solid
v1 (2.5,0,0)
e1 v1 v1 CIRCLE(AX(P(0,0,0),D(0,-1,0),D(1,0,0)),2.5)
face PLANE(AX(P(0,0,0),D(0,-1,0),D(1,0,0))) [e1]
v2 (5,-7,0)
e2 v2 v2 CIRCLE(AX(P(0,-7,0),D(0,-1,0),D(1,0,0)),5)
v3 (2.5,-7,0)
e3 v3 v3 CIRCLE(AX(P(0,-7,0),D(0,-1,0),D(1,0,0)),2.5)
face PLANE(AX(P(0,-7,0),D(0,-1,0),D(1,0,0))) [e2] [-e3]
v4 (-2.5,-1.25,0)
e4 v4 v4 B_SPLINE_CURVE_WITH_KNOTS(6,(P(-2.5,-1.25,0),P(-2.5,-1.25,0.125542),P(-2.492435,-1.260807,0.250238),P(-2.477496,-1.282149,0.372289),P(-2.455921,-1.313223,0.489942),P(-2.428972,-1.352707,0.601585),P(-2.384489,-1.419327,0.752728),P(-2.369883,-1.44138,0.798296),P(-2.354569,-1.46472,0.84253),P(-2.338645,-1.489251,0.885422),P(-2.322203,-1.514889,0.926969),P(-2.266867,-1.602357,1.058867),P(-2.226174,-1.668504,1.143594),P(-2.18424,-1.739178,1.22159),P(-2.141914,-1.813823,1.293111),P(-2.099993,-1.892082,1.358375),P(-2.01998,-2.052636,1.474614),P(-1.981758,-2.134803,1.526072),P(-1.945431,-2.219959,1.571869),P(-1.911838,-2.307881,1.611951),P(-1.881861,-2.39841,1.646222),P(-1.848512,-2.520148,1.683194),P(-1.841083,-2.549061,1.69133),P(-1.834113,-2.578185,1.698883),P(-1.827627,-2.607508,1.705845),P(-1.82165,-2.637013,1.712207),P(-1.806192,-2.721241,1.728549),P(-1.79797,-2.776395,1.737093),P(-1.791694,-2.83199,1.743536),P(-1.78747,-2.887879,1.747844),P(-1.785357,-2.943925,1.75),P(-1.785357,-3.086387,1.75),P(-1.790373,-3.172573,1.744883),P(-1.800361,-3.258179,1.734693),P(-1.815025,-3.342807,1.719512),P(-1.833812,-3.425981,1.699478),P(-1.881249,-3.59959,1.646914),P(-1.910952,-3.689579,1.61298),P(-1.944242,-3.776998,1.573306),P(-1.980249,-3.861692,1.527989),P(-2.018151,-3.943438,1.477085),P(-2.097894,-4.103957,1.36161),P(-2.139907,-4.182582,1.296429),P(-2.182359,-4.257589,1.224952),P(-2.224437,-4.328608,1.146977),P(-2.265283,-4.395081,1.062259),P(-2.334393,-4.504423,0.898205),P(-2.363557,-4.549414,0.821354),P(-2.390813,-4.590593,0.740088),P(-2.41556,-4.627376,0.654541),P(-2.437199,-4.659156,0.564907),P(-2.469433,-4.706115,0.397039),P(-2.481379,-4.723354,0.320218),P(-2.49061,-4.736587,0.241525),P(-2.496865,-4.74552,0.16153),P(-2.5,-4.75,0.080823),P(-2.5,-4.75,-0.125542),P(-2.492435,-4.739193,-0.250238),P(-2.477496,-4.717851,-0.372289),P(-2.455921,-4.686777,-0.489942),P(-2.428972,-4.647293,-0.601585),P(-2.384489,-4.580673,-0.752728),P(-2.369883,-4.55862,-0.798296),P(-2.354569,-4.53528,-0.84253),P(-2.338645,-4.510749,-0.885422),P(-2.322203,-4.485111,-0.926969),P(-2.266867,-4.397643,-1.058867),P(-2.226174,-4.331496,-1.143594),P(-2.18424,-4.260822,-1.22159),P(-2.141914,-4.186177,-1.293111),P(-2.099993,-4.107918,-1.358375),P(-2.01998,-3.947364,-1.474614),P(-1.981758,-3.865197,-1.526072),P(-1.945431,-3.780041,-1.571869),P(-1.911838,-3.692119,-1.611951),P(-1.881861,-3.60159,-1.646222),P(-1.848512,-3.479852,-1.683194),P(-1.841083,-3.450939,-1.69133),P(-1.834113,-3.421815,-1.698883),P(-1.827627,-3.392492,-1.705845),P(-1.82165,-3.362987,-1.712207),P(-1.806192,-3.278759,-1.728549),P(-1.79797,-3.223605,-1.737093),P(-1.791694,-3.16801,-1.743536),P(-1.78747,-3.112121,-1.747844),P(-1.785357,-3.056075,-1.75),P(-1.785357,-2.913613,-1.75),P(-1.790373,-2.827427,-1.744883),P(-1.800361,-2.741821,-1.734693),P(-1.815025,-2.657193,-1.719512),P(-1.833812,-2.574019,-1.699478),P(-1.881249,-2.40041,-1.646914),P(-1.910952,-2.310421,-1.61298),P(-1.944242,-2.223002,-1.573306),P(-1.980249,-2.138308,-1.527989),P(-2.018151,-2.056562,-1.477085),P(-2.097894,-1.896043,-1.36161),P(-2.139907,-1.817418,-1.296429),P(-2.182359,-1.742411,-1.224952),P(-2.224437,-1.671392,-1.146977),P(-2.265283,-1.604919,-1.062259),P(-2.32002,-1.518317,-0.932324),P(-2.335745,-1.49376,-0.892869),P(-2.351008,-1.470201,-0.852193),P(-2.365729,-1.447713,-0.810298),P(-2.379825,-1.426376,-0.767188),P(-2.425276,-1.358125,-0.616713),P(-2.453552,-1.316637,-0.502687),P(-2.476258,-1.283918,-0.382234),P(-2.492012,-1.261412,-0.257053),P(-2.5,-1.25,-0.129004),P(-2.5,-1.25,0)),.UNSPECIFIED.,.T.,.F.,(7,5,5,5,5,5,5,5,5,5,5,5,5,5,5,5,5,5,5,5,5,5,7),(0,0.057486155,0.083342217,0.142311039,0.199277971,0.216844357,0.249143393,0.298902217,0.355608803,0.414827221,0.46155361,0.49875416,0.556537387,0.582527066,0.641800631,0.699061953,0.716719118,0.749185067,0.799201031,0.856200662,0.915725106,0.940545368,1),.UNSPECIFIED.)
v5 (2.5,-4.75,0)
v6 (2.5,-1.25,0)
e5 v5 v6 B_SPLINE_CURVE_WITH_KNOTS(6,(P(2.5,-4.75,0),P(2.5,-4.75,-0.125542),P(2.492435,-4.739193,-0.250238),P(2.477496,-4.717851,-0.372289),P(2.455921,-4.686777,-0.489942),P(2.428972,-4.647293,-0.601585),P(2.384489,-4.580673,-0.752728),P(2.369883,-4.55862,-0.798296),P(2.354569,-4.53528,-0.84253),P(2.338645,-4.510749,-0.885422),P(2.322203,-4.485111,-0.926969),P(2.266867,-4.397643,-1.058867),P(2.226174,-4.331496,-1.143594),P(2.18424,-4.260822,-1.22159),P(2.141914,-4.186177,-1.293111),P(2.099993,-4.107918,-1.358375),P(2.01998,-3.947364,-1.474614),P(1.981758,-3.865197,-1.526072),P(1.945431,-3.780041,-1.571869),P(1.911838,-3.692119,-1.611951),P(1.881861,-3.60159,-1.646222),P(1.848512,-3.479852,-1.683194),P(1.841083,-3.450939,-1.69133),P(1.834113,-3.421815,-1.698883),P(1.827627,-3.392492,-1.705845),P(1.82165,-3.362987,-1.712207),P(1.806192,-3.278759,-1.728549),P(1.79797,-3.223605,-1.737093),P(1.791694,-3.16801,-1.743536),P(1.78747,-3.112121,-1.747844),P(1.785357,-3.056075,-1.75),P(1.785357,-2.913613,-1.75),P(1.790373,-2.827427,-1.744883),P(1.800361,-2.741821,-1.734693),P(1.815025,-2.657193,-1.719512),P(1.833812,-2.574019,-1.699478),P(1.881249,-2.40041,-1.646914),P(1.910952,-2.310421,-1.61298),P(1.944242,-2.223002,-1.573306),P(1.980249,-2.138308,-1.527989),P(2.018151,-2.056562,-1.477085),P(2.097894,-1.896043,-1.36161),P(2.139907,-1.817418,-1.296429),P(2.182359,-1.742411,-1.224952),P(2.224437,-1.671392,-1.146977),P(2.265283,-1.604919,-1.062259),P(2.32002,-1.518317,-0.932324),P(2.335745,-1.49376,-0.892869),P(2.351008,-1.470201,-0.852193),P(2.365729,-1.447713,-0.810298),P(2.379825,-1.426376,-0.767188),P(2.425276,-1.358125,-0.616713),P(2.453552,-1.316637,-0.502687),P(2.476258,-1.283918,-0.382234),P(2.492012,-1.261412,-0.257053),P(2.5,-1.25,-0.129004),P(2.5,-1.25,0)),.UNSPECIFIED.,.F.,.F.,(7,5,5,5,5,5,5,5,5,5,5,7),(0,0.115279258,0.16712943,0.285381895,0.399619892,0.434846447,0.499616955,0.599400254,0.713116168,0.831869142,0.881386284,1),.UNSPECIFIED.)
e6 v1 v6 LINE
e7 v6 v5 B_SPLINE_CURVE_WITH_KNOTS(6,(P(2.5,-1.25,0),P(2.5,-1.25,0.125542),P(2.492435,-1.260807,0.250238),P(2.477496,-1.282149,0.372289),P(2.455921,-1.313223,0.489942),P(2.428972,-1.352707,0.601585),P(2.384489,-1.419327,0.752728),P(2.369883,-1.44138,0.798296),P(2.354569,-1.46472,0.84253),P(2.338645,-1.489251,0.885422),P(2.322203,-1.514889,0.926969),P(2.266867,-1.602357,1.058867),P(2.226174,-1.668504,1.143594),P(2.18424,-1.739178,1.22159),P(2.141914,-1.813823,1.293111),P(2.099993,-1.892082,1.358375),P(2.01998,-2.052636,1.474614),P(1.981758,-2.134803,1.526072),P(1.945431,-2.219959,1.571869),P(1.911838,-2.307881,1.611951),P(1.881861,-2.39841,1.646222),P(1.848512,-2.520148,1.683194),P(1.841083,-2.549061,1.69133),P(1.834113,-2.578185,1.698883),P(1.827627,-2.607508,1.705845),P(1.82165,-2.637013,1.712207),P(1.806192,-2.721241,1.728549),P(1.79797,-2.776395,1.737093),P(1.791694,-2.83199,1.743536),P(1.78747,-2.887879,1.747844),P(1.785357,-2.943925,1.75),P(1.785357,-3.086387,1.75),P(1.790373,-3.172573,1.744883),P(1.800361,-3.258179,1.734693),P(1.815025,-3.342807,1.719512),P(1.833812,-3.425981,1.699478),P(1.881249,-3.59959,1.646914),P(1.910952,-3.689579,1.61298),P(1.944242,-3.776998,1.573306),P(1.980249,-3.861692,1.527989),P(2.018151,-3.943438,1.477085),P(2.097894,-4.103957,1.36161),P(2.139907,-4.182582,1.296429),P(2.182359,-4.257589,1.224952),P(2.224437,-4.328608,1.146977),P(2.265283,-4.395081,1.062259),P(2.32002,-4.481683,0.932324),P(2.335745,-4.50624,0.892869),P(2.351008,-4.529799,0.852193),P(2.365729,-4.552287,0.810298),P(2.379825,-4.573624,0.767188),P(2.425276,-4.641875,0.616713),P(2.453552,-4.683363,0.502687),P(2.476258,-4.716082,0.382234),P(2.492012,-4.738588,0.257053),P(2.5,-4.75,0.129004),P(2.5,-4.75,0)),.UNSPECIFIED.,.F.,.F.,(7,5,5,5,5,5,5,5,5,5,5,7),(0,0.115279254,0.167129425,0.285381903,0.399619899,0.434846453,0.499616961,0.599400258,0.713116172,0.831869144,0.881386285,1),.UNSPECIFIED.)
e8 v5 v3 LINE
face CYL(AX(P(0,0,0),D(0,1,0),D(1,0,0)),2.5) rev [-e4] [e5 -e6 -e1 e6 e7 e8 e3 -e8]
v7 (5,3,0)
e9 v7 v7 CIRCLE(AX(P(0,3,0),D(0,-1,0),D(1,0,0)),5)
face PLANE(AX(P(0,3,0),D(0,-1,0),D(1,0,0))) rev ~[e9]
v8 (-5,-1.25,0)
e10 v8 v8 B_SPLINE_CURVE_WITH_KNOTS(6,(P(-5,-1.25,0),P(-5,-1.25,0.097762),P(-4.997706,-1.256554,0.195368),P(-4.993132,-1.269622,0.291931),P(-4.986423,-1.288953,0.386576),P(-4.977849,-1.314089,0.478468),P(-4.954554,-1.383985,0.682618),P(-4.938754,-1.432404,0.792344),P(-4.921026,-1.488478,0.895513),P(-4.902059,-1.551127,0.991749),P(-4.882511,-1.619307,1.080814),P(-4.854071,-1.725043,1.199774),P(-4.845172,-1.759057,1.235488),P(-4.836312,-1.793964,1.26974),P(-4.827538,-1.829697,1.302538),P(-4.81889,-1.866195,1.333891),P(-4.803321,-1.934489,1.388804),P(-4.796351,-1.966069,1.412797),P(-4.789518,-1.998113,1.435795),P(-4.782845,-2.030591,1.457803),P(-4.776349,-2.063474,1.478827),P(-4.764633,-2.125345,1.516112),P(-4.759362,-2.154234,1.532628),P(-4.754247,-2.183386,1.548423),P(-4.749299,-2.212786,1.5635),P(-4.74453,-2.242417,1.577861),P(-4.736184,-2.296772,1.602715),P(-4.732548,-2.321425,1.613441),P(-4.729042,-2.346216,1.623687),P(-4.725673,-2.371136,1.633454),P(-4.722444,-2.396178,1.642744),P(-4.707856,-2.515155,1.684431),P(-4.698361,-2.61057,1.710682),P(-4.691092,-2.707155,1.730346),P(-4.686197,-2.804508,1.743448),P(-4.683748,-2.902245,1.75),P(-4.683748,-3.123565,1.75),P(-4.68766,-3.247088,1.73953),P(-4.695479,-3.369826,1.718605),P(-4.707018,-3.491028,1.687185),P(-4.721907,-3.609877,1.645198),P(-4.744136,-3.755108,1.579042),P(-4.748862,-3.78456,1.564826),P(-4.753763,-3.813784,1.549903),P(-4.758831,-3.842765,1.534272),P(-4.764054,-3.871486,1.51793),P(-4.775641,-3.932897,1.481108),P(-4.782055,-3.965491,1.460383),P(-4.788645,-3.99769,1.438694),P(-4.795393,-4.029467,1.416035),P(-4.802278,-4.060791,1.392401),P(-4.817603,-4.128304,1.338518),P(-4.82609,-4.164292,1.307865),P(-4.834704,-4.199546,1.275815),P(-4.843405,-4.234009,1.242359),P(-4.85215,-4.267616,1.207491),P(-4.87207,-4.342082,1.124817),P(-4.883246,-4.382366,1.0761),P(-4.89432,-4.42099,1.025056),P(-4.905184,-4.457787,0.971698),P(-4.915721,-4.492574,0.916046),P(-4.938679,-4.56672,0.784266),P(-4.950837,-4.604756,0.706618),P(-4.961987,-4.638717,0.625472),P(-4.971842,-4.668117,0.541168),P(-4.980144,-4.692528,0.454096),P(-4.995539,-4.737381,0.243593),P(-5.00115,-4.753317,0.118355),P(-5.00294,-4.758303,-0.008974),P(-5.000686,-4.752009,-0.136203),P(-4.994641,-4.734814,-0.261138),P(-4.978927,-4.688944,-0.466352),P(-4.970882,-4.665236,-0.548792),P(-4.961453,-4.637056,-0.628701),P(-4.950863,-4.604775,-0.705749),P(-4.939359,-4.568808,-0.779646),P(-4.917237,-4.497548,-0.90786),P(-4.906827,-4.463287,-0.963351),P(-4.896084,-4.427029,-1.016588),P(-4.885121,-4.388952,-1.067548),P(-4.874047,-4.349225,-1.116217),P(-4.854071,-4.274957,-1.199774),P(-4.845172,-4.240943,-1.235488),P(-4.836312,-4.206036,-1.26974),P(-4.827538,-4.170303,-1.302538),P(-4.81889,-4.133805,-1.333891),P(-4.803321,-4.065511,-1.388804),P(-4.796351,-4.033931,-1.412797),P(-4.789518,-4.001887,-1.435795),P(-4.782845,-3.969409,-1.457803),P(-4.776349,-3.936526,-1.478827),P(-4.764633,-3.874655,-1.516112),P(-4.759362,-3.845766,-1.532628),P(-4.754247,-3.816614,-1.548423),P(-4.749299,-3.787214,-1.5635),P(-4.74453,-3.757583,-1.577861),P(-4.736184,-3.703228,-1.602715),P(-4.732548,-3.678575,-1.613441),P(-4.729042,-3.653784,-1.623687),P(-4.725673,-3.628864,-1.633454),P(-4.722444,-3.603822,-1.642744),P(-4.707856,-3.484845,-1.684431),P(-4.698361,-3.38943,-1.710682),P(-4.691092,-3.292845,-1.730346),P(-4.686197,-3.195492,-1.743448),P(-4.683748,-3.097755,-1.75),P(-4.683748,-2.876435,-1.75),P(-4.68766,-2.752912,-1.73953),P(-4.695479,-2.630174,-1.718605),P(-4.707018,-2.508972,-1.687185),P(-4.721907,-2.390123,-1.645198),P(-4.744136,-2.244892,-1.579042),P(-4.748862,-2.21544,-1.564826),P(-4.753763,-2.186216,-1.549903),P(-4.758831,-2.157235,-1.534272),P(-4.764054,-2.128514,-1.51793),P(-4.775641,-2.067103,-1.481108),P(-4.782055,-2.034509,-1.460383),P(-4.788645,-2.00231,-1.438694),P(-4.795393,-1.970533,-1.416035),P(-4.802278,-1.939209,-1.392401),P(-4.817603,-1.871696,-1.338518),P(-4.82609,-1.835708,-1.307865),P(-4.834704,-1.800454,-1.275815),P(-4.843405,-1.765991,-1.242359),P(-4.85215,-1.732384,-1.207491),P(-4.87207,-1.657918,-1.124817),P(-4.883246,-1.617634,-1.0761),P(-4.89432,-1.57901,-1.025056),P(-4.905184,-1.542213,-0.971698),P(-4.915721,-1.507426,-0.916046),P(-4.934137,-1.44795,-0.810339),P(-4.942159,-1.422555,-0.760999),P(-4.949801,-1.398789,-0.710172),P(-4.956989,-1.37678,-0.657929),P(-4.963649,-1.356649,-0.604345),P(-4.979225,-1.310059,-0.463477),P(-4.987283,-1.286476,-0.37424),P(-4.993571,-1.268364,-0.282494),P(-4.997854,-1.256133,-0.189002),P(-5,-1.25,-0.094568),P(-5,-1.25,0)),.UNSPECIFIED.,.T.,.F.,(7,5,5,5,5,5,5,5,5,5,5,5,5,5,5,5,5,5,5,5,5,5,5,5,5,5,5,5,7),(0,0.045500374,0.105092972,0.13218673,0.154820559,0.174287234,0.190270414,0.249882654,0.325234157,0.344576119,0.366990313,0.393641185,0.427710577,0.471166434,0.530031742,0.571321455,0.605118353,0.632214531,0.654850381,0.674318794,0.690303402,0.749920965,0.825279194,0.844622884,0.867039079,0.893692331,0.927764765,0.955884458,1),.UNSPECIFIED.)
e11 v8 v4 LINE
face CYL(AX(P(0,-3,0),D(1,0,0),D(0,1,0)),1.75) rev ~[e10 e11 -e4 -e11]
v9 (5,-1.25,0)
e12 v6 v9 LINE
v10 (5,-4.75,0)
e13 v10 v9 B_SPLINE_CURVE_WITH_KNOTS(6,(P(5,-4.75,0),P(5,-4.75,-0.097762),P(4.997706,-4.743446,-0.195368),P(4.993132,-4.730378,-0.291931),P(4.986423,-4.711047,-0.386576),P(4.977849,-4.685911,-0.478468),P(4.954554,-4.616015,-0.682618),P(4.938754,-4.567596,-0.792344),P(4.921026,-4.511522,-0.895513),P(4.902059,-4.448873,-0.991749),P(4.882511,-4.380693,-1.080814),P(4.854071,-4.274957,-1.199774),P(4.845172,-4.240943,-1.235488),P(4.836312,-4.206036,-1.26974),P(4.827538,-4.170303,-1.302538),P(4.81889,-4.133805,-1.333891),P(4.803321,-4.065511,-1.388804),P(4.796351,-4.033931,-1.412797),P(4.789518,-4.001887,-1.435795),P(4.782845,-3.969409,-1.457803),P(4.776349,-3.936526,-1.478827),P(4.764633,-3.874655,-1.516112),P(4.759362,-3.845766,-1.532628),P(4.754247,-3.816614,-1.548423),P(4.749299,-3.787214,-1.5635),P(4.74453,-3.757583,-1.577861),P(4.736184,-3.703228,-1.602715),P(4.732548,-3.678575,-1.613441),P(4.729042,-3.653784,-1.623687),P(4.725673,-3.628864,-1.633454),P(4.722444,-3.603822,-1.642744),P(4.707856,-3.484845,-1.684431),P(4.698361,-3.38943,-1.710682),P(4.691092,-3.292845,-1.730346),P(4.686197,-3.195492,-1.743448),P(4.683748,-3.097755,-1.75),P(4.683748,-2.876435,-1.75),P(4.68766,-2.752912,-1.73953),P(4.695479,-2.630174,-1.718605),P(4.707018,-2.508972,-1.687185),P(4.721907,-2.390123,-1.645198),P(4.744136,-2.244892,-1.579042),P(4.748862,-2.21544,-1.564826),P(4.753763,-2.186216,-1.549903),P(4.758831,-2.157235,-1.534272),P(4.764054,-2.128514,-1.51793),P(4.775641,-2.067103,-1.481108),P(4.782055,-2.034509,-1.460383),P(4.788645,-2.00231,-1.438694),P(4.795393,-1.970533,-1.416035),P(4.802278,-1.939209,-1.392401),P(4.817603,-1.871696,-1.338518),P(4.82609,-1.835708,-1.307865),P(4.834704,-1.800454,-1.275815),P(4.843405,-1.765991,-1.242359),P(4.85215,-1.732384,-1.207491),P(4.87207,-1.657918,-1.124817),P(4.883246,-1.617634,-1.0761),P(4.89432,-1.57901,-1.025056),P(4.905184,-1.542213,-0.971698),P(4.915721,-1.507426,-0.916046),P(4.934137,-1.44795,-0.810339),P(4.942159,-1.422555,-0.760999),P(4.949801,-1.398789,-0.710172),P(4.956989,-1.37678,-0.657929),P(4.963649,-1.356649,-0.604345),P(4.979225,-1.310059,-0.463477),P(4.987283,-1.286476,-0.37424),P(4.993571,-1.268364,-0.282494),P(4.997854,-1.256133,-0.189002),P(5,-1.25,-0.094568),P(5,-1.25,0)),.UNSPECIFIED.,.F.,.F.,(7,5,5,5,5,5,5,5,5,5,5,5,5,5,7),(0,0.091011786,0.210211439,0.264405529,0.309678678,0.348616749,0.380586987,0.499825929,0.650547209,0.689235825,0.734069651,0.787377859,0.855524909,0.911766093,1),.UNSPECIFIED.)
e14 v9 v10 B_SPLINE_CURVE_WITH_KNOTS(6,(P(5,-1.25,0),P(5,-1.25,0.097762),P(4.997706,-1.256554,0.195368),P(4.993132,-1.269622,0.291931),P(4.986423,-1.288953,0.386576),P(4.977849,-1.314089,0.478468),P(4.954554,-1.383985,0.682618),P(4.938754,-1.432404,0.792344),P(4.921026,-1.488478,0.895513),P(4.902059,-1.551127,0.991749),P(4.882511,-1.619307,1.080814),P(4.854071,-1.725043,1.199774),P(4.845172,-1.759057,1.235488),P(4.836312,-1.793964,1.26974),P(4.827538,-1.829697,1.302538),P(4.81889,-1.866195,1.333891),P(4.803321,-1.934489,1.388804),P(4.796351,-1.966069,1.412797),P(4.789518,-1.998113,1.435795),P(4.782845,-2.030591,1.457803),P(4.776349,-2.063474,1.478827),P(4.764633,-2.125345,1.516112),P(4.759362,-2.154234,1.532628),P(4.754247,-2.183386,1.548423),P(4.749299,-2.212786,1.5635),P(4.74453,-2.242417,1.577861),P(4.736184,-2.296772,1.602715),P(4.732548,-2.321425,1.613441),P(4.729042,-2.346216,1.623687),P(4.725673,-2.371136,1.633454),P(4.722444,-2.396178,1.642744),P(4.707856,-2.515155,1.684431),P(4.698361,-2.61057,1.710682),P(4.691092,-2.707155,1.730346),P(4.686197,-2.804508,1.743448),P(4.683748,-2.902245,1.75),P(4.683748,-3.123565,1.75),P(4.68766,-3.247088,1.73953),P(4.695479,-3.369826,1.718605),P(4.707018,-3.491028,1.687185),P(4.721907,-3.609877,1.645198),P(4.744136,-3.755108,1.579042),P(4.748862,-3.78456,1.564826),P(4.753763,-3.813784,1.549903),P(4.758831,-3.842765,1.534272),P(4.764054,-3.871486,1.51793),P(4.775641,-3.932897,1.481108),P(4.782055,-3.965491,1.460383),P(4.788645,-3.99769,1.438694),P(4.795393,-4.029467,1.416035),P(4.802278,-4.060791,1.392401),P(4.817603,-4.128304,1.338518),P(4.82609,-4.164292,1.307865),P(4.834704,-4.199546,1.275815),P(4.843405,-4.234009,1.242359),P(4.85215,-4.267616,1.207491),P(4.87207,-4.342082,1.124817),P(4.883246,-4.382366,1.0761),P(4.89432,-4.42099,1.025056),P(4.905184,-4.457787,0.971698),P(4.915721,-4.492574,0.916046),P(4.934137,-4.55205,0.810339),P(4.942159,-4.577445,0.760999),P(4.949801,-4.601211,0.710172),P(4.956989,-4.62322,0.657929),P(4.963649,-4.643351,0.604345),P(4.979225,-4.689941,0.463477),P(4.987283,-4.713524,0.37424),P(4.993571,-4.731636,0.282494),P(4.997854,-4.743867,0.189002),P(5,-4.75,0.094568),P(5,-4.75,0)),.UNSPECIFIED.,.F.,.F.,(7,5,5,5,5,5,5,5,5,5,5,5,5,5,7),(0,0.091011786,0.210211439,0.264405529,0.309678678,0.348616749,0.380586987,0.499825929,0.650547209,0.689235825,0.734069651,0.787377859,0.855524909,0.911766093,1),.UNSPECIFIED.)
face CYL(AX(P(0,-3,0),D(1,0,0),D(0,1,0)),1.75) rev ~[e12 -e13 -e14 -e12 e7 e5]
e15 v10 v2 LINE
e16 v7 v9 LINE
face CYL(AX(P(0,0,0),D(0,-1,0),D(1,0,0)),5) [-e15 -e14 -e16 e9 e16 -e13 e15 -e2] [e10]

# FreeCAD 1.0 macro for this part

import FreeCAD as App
import Part
import Sketcher

doc = App.newDocument("Part")
body = doc.addObject("PartDesign::Body", "Body")

sketch1 = body.newObject("Sketcher::SketchObject", "Sketch")
sketch1.AttachmentSupport = (doc.getObject("XZ_Plane"), [""])
sketch1.MapMode = "FlatFace"
sketch1.addGeometry(Part.Circle(App.Vector(0, 0, 0), App.Vector(0, 0, 1), 5), False)
sketch1.addGeometry(Part.Circle(App.Vector(0, 0, 0), App.Vector(0, 0, 1), 2.5), False)
sketch1.addConstraint(Sketcher.Constraint("Coincident", 0, 3, -1, 1))
sketch1.addConstraint(Sketcher.Constraint("Coincident", 1, 3, -1, 1))
sketch1.addConstraint(Sketcher.Constraint("Diameter", 0, 10.0))
sketch1.addConstraint(Sketcher.Constraint("Diameter", 1, 5.0))
pad1 = body.newObject("PartDesign::Pad", "Pad")
pad1.Profile = sketch1
pad1.Length = 7

sketch2 = body.newObject("Sketcher::SketchObject", "Sketch001")
sketch2.AttachmentSupport = (doc.getObject("XZ_Plane"), [""])
sketch2.MapMode = "FlatFace"
sketch2.addGeometry(Part.Circle(App.Vector(0, 0, 0), App.Vector(0, 0, 1), 5), False)
sketch2.addConstraint(Sketcher.Constraint("Coincident", 0, 3, -1, 1))
sketch2.addConstraint(Sketcher.Constraint("Diameter", 0, 10.0))
pad2 = body.newObject("PartDesign::Pad", "Pad001")
pad2.Profile = sketch2
pad2.Length = 3
pad2.Reversed = True

sketch3 = body.newObject("Sketcher::SketchObject", "Sketch002")
sketch3.AttachmentSupport = (doc.getObject("YZ_Plane"), [""])
sketch3.MapMode = "FlatFace"
sketch3.addGeometry(Part.Circle(App.Vector(-3, 0, 0), App.Vector(0, 0, 1), 1.8), False)
sketch3.addConstraint(Sketcher.Constraint("PointOnObject", 0, 3, -1))
sketch3.addConstraint(Sketcher.Constraint("Diameter", 0, 3.5))
sketch3.addConstraint(Sketcher.Constraint("DistanceX", 0, 3, -1, 1, 3.0))
pocket1 = body.newObject("PartDesign::Pocket", "Pocket")
pocket1.Profile = sketch3
pocket1.Length = 25
pocket1.Midplane = True

doc.recompute()
